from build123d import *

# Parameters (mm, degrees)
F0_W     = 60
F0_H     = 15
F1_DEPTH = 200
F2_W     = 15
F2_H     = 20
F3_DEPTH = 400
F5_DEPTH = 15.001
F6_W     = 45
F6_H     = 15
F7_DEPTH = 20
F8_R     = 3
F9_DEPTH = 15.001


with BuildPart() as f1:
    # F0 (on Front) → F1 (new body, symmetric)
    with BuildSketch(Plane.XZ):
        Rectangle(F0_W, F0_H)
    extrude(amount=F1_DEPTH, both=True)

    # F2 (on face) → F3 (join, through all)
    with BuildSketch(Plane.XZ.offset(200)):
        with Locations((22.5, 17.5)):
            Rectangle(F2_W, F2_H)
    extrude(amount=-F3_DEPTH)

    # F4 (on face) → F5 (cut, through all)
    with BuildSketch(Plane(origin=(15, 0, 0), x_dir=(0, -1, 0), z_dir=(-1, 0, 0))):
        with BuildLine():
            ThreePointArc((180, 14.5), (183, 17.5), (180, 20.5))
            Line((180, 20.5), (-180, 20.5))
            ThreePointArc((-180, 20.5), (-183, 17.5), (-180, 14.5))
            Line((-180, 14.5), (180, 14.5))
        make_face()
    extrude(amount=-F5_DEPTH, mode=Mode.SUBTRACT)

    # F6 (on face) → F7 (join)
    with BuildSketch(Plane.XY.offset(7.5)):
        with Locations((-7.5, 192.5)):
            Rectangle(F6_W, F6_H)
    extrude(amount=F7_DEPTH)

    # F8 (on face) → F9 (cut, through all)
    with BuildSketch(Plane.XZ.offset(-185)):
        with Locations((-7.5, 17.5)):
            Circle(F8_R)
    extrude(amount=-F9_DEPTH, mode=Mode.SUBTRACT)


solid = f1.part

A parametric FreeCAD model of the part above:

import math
import FreeCAD as App
import Part
import Sketcher

doc = App.newDocument("Part")
params = doc.addObject("Spreadsheet::Sheet", "Params")
for row, (alias, value) in enumerate([
    ("sketch1_width", "60 mm"),
    ("sketch1_height", "15 mm"),
    ("pad1_length", "400 mm"),
    ("sketch2_width", "15 mm"),
    ("sketch2_height", "20 mm"),
    ("pad2_length", "400 mm"),
    ("sketch3_radius", "3 mm"),
    ("sketch3_width", "360 mm"),
    ("sketch4_width", "45 mm"),
    ("sketch4_height", "15 mm"),
    ("pad3_length", "20 mm"),
    ("sketch5_diameter", "6 mm"),
], start=1):
    params.set(f"A{row}", alias)
    params.set(f"B{row}", "=" + value)
    params.setAlias(f"B{row}", alias)

body = doc.addObject("PartDesign::Body", "Body")

sketch1 = body.newObject("Sketcher::SketchObject", "Sketch")
sketch1.AttachmentSupport = (doc.getObject("XZ_Plane"), [""])
sketch1.MapMode = "FlatFace"
sketch1.addGeometry([
    Part.LineSegment(App.Vector(-30, 8, 0), App.Vector(-30, -8, 0)),
    Part.LineSegment(App.Vector(-30, -8, 0), App.Vector(30, -8, 0)),
    Part.LineSegment(App.Vector(30, -8, 0), App.Vector(30, 8, 0)),
    Part.LineSegment(App.Vector(30, 8, 0), App.Vector(-30, 8, 0)),
], False)
sketch1.addConstraint([
    Sketcher.Constraint("Coincident", 0, 2, 1, 1),
    Sketcher.Constraint("Coincident", 1, 2, 2, 1),
    Sketcher.Constraint("Coincident", 2, 2, 3, 1),
    Sketcher.Constraint("Coincident", 3, 2, 0, 1),
    Sketcher.Constraint("Vertical", 0),
    Sketcher.Constraint("Horizontal", 1),
    Sketcher.Constraint("Vertical", 2),
    Sketcher.Constraint("Horizontal", 3),
    Sketcher.Constraint("Symmetric", 0, 2, 2, 2, -1, 1),
    Sketcher.Constraint("DistanceX", 1, 1, 1, 2, 60.0),
    Sketcher.Constraint("DistanceY", 0, 2, 0, 1, 15.0),
])
sketch1.setExpression("Constraints[9]", "Params.sketch1_width")
sketch1.setExpression("Constraints[10]", "Params.sketch1_height")
pad1 = body.newObject("PartDesign::Pad", "Pad")
pad1.Profile = sketch1
pad1.setExpression("Length", "Params.pad1_length")
pad1.Midplane = True

sketch2 = body.newObject("Sketcher::SketchObject", "Sketch001")
sketch2.AttachmentSupport = (doc.getObject("XZ_Plane"), [""])
sketch2.MapMode = "FlatFace"
sketch2.AttachmentOffset = App.Placement(App.Vector(0, 0, 200), App.Rotation())
sketch2.addGeometry([
    Part.LineSegment(App.Vector(15, 28, 0), App.Vector(15, 8, 0)),
    Part.LineSegment(App.Vector(15, 8, 0), App.Vector(30, 8, 0)),
    Part.LineSegment(App.Vector(30, 8, 0), App.Vector(30, 28, 0)),
    Part.LineSegment(App.Vector(30, 28, 0), App.Vector(15, 28, 0)),
], False)
sketch2.addConstraint([
    Sketcher.Constraint("Coincident", 0, 2, 1, 1),
    Sketcher.Constraint("Coincident", 1, 2, 2, 1),
    Sketcher.Constraint("Coincident", 2, 2, 3, 1),
    Sketcher.Constraint("Coincident", 3, 2, 0, 1),
    Sketcher.Constraint("Vertical", 0),
    Sketcher.Constraint("Horizontal", 1),
    Sketcher.Constraint("Vertical", 2),
    Sketcher.Constraint("Horizontal", 3),
    Sketcher.Constraint("DistanceX", 1, 1, 1, 2, 15.0),
    Sketcher.Constraint("DistanceY", 0, 2, 0, 1, 20.0),
    Sketcher.Constraint("DistanceX", -1, 1, 0, 2, 15.0),
    Sketcher.Constraint("DistanceY", -1, 1, 0, 2, 7.5),
])
sketch2.setExpression("Constraints[8]", "Params.sketch2_width")
sketch2.setExpression("Constraints[9]", "Params.sketch2_height")
pad2 = body.newObject("PartDesign::Pad", "Pad001")
pad2.Profile = sketch2
pad2.setExpression("Length", "Params.pad2_length")
pad2.Reversed = True

sketch3 = body.newObject("Sketcher::SketchObject", "Sketch002")
sketch3.AttachmentSupport = (doc.getObject("YZ_Plane"), [""])
sketch3.MapMode = "FlatFace"
sketch3.AttachmentOffset = App.Placement(App.Vector(0, 0, 15), App.Rotation())
sketch3.addGeometry([
    Part.ArcOfCircle(Part.Circle(App.Vector(-180, 17.5, 0), App.Vector(0, 0, 1), 3), math.radians(90), math.radians(270)),
    Part.LineSegment(App.Vector(-180, 20.5, 0), App.Vector(180, 20.5, 0)),
    Part.ArcOfCircle(Part.Circle(App.Vector(180, 17.5, 0), App.Vector(0, 0, 1), 3), math.radians(-90), math.radians(90)),
    Part.LineSegment(App.Vector(180, 14.5, 0), App.Vector(-180, 14.5, 0)),
], False)
sketch3.addConstraint([
    Sketcher.Constraint("Tangent", 0, 1, 1, 1),
    Sketcher.Constraint("Tangent", 1, 2, 2, 2),
    Sketcher.Constraint("Tangent", 2, 1, 3, 1),
    Sketcher.Constraint("Tangent", 3, 2, 0, 2),
    Sketcher.Constraint("Horizontal", 1),
    Sketcher.Constraint("Horizontal", 3),
    Sketcher.Constraint("Radius", 0, 3.0),
    Sketcher.Constraint("DistanceX", 1, 1, 1, 2, 360.0),
    Sketcher.Constraint("DistanceX", 0, 3, -1, 1, 180.0),
    Sketcher.Constraint("DistanceY", -1, 1, 0, 3, 17.5),
])
sketch3.setExpression("Constraints[6]", "Params.sketch3_radius")
sketch3.setExpression("Constraints[7]", "Params.sketch3_width")
pocket1 = body.newObject("PartDesign::Pocket", "Pocket")
pocket1.Profile = sketch3
pocket1.Type = "ThroughAll"
pocket1.Reversed = True

sketch4 = body.newObject("Sketcher::SketchObject", "Sketch003")
sketch4.AttachmentSupport = (doc.getObject("XY_Plane"), [""])
sketch4.MapMode = "FlatFace"
sketch4.AttachmentOffset = App.Placement(App.Vector(0, 0, 7.5), App.Rotation())
sketch4.addGeometry([
    Part.LineSegment(App.Vector(-30, 200, 0), App.Vector(-30, 185, 0)),
    Part.LineSegment(App.Vector(-30, 185, 0), App.Vector(15, 185, 0)),
    Part.LineSegment(App.Vector(15, 185, 0), App.Vector(15, 200, 0)),
    Part.LineSegment(App.Vector(15, 200, 0), App.Vector(-30, 200, 0)),
], False)
sketch4.addConstraint([
    Sketcher.Constraint("Coincident", 0, 2, 1, 1),
    Sketcher.Constraint("Coincident", 1, 2, 2, 1),
    Sketcher.Constraint("Coincident", 2, 2, 3, 1),
    Sketcher.Constraint("Coincident", 3, 2, 0, 1),
    Sketcher.Constraint("Vertical", 0),
    Sketcher.Constraint("Horizontal", 1),
    Sketcher.Constraint("Vertical", 2),
    Sketcher.Constraint("Horizontal", 3),
    Sketcher.Constraint("DistanceX", 1, 1, 1, 2, 45.0),
    Sketcher.Constraint("DistanceY", 0, 2, 0, 1, 15.0),
    Sketcher.Constraint("DistanceX", 0, 2, -1, 1, 30.0),
    Sketcher.Constraint("DistanceY", -1, 1, 0, 2, 185.0),
])
sketch4.setExpression("Constraints[8]", "Params.sketch4_width")
sketch4.setExpression("Constraints[9]", "Params.sketch4_height")
pad3 = body.newObject("PartDesign::Pad", "Pad002")
pad3.Profile = sketch4
pad3.setExpression("Length", "Params.pad3_length")

sketch5 = body.newObject("Sketcher::SketchObject", "Sketch004")
sketch5.AttachmentSupport = (doc.getObject("XZ_Plane"), [""])
sketch5.MapMode = "FlatFace"
sketch5.AttachmentOffset = App.Placement(App.Vector(0, 0, -185), App.Rotation())
sketch5.addGeometry(Part.Circle(App.Vector(-7.5, 17.5, 0), App.Vector(0, 0, 1), 3), False)
sketch5.addConstraint([
    Sketcher.Constraint("Diameter", 0, 6.0),
    Sketcher.Constraint("DistanceX", 0, 3, -1, 1, 7.5),
    Sketcher.Constraint("DistanceY", -1, 1, 0, 3, 17.5),
])
sketch5.setExpression("Constraints[0]", "Params.sketch5_diameter")
pocket2 = body.newObject("PartDesign::Pocket", "Pocket001")
pocket2.Profile = sketch5
pocket2.Type = "ThroughAll"

doc.recompute()
